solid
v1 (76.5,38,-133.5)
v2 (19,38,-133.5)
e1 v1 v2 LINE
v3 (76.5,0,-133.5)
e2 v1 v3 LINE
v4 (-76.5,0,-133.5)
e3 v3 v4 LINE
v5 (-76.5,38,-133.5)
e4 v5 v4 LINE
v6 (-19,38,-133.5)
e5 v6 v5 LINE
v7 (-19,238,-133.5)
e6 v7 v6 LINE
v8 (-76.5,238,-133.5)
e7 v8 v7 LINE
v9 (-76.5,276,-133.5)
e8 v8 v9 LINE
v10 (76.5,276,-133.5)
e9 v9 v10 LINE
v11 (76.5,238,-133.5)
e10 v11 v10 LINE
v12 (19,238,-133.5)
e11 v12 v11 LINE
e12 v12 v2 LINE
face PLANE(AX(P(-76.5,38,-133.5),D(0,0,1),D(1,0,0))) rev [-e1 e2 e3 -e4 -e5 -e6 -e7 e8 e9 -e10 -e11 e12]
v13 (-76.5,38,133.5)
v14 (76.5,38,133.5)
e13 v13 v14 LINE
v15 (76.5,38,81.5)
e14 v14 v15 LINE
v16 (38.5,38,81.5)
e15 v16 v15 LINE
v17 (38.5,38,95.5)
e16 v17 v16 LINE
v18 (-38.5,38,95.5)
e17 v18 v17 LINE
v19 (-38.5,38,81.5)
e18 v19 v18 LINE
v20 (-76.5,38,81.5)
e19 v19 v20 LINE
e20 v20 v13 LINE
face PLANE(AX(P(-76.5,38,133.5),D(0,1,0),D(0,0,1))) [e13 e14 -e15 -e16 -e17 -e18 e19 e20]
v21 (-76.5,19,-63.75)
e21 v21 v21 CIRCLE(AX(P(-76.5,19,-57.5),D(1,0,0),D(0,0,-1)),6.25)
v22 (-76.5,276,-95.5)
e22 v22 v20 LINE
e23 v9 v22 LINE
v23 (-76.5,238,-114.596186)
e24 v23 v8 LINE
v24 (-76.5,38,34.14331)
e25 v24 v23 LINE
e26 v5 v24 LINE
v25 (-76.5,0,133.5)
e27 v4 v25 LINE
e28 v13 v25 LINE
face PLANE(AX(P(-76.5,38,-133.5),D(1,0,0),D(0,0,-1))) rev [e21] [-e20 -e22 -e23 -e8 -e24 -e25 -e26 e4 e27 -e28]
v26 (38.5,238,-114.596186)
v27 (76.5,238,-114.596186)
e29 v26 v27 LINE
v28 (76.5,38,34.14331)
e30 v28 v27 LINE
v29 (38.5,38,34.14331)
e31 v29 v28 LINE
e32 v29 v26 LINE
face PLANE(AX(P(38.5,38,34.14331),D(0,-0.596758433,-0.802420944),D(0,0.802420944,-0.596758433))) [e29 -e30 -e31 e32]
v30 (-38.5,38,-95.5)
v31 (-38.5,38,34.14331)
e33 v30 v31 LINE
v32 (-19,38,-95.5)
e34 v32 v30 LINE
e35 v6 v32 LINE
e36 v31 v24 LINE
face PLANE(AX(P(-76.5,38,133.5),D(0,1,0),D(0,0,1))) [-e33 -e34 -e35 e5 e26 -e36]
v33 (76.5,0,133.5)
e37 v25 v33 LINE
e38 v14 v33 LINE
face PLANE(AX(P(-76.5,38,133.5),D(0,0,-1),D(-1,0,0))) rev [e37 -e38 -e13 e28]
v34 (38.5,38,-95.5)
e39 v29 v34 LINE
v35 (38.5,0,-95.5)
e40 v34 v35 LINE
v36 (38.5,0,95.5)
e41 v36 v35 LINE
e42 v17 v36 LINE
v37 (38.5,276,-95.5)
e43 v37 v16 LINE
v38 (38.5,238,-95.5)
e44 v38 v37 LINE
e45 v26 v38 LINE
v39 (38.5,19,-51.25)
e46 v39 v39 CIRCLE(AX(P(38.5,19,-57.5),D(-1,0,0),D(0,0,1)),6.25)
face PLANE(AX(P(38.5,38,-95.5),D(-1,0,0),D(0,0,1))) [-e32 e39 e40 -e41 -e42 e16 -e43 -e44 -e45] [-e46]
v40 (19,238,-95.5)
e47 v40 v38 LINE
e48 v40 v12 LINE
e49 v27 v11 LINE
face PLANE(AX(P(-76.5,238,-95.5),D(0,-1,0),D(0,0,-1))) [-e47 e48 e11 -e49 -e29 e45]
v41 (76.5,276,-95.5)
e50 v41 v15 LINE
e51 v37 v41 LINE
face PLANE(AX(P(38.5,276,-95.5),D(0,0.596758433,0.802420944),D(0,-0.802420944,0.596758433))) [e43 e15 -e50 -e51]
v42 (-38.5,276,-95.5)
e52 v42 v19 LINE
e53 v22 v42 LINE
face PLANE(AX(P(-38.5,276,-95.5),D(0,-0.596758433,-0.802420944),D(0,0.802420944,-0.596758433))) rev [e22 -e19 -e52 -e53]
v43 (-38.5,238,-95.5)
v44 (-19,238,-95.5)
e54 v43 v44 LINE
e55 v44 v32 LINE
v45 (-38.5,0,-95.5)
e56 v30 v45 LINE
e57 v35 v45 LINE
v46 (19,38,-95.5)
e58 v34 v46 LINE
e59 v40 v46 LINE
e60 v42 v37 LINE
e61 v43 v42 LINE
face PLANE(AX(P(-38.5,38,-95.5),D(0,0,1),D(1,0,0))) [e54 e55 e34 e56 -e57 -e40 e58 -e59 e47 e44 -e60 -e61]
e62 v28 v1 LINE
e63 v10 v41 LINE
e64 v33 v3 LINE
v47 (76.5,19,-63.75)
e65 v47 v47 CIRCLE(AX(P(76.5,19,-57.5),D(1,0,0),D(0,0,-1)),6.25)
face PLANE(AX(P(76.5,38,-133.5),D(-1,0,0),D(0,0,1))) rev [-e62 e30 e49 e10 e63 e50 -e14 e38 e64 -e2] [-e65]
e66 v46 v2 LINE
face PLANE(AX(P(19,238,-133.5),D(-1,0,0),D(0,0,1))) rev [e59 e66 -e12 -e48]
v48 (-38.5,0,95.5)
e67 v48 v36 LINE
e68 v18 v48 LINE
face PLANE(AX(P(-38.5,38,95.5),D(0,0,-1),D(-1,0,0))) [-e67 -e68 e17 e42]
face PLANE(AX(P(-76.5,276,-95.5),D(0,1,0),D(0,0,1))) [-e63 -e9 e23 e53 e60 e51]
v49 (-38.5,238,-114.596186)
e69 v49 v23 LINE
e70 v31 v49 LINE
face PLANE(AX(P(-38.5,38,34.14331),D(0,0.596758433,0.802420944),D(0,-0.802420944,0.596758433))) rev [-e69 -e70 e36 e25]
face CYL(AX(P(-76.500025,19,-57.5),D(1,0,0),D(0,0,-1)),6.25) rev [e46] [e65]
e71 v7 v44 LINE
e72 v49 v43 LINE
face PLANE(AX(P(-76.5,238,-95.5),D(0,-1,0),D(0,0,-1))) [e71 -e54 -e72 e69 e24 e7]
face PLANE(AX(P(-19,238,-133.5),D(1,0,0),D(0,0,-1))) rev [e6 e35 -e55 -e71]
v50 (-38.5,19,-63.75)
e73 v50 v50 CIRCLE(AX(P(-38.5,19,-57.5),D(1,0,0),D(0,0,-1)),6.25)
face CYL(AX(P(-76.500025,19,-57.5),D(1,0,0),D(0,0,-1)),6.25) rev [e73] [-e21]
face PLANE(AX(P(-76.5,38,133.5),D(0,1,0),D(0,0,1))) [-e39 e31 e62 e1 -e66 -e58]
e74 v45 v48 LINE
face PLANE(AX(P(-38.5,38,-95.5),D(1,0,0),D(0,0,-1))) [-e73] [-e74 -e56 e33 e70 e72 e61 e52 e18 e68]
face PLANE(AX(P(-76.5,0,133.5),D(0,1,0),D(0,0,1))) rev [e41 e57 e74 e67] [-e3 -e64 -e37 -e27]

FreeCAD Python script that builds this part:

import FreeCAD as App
import Part
import Sketcher

V = App.Vector
Q = App.Units.Quantity


def add_polygon(sketch, points):
    """Adds a closed chain of lines whose ends are joined by coincident constraints."""
    first, n = sketch.GeometryCount, len(points)
    for a, b in zip(points, points[1:] + points[:1]):
        sketch.addGeometry(Part.LineSegment(App.Vector(*a, 0), App.Vector(*b, 0)), False)
    for i in range(n):
        sketch.addConstraint(Sketcher.Constraint("Coincident", first + i, 2, first + (i + 1) % n, 1))

doc = App.newDocument("Part")
params = doc.addObject("Spreadsheet::Sheet", "Params")
for row, (alias, value) in enumerate([
    ("sketch1_width", "153 mm"),
    ("sketch1_width2", "77 mm"),
    ("sketch1_height", "267 mm"),
    ("sketch1_height2", "191 mm"),
    ("pad1_length", "38 mm"),
    ("sketch2_width", "38 mm"),
    ("pad2_length", "200 mm"),
    ("sketch3_width", "38 mm"),
    ("pad3_length", "76.5 mm"),
    ("pad3_length2", "76.5 mm"),
    ("sketch4_width", "38 mm"),
    ("pad4_length", "38 mm"),
    ("sketch5_diameter", "12.5 mm"),
], start=1):
    params.set(f"A{row}", alias)
    params.set(f"B{row}", "=" + value)
    params.setAlias(f"B{row}", alias)

body = doc.addObject("PartDesign::Body", "Body")

sketch1 = body.newObject("Sketcher::SketchObject", "Sketch")
sketch1.AttachmentSupport = (doc.getObject("XZ_Plane"), [""])
sketch1.MapMode = "FlatFace"
add_polygon(sketch1, [(-76.5, -133.5), (-76.5, 133.5), (76.5, 133.5), (76.5, -133.5)])
add_polygon(sketch1, [(38.5, 95.5), (-38.5, 95.5), (-38.5, -95.5), (38.5, -95.5)])
sketch1.addConstraint([
    Sketcher.Constraint("Vertical", 0),
    Sketcher.Constraint("Horizontal", 1),
    Sketcher.Constraint("Vertical", 2),
    Sketcher.Constraint("Horizontal", 3),
    Sketcher.Constraint("Horizontal", 4),
    Sketcher.Constraint("Vertical", 5),
    Sketcher.Constraint("Horizontal", 6),
    Sketcher.Constraint("Vertical", 7),
    Sketcher.Constraint("Symmetric", 0, 2, 2, 2, -1, 1),
    Sketcher.Constraint("Symmetric", 4, 2, 6, 2, -1, 1),
    Sketcher.Constraint("DistanceX", 1, 1, 1, 2, Q("153 mm")),
    Sketcher.Constraint("DistanceX", 4, 2, 4, 1, Q("77 mm")),
    Sketcher.Constraint("DistanceY", 0, 1, 0, 2, Q("267 mm")),
    Sketcher.Constraint("DistanceY", 5, 2, 5, 1, Q("191 mm")),
])
sketch1.setExpression("Constraints[18]", "Params.sketch1_width")
sketch1.setExpression("Constraints[19]", "Params.sketch1_width2")
sketch1.setExpression("Constraints[20]", "Params.sketch1_height")
sketch1.setExpression("Constraints[21]", "Params.sketch1_height2")
pad1 = body.newObject("PartDesign::Pad", "Pad")
pad1.Profile = sketch1
pad1.setExpression("Length", "Params.pad1_length")
pad1.Reversed = True

sketch2 = body.newObject("Sketcher::SketchObject", "Sketch001")
sketch2.AttachmentSupport = (doc.getObject("XZ_Plane"), [""])
sketch2.MapMode = "FlatFace"
sketch2.AttachmentOffset = App.Placement(V(0, 0, -38), App.Rotation())
add_polygon(sketch2, [(-19, -133.5), (-19, -95.5), (19, -95.5), (19, -133.5)])
sketch2.addConstraint([
    Sketcher.Constraint("Vertical", 0),
    Sketcher.Constraint("Horizontal", 1),
    Sketcher.Constraint("Vertical", 2),
    Sketcher.Constraint("Horizontal", 3),
    Sketcher.Constraint("Equal", 3, 0),
    Sketcher.Constraint("DistanceX", 1, 1, 1, 2, Q("38 mm")),
    Sketcher.Constraint("DistanceX", 0, 2, -1, 1, Q("19 mm")),
    Sketcher.Constraint("DistanceY", 0, 2, -1, 1, Q("95.5 mm")),
])
sketch2.setExpression("Constraints[9]", "Params.sketch2_width")
pad2 = body.newObject("PartDesign::Pad", "Pad001")
pad2.Profile = sketch2
pad2.setExpression("Length", "Params.pad2_length")
pad2.Reversed = True

sketch3 = body.newObject("Sketcher::SketchObject", "Sketch002")
sketch3.AttachmentSupport = (doc.getObject("YZ_Plane"), [""])
sketch3.MapMode = "FlatFace"
add_polygon(sketch3, [(276, -95.5), (238, -95.5), (238, -133.5), (276, -133.5)])
sketch3.addConstraint([
    Sketcher.Constraint("Horizontal", 0),
    Sketcher.Constraint("Vertical", 1),
    Sketcher.Constraint("Horizontal", 2),
    Sketcher.Constraint("Vertical", 3),
    Sketcher.Constraint("Equal", 2, 1),
    Sketcher.Constraint("DistanceX", 0, 2, 0, 1, Q("38 mm")),
    Sketcher.Constraint("DistanceX", -1, 1, 0, 2, Q("238 mm")),
    Sketcher.Constraint("DistanceY", 0, 2, -1, 1, Q("95.5 mm")),
])
sketch3.setExpression("Constraints[9]", "Params.sketch3_width")
pad3 = body.newObject("PartDesign::Pad", "Pad002")
pad3.Profile = sketch3
pad3.Type = "TwoLengths"
pad3.setExpression("Length", "Params.pad3_length")
pad3.setExpression("Length2", "Params.pad3_length2")

sketch4 = body.newObject("Sketcher::SketchObject", "Sketch003")
sketch4.AttachmentSupport = (doc.getObject("YZ_Plane"), [""])
sketch4.MapMode = "FlatFace"
sketch4.AttachmentOffset = App.Placement(V(0, 0, 76.5), App.Rotation())
add_polygon(sketch4, [(276, -95.5), (38, 81.5), (38, 34.14331), (238, -114.596186), (238, -95.5)])
sketch4.addConstraint([
    Sketcher.Constraint("Vertical", 1),
    Sketcher.Constraint("Vertical", 3),
    Sketcher.Constraint("Horizontal", 4),
    Sketcher.Constraint("Parallel", 0, 2),
    Sketcher.Constraint("DistanceX", 4, 1, 4, 2, Q("38 mm")),
    Sketcher.Constraint("DistanceX", -1, 1, 0, 2, Q("38 mm")),
    Sketcher.Constraint("DistanceX", -1, 1, 2, 2, Q("238 mm")),
    Sketcher.Constraint("DistanceY", 3, 2, 0, 2, Q("177 mm")),
    Sketcher.Constraint("DistanceY", -1, 1, 0, 2, Q("81.5 mm")),
    Sketcher.Constraint("DistanceY", 1, 2, 1, 1, Q("47.35669 mm")),
])
sketch4.setExpression("Constraints[9]", "Params.sketch4_width")
pad4 = body.newObject("PartDesign::Pad", "Pad003")
pad4.Profile = sketch4
pad4.setExpression("Length", "Params.pad4_length")
pad4.Reversed = True
doc.recompute()

mirrored = body.newObject("PartDesign::Mirrored", "Mirrored")
mirrored.Originals = [pad4]
mirrored.MirrorPlane = (doc.getObject("YZ_Plane"), [""])
body.Tip = mirrored

sketch5 = body.newObject("Sketcher::SketchObject", "Sketch004")
sketch5.AttachmentSupport = (doc.getObject("YZ_Plane"), [""])
sketch5.MapMode = "FlatFace"
sketch5.AttachmentOffset = App.Placement(V(0, 0, 76.5), App.Rotation())
sketch5.addGeometry(Part.Circle(V(19, -57.5, 0), V(0, 0, 1), 6.25), False)
sketch5.addConstraint([
    Sketcher.Constraint("Diameter", 0, Q("12.5 mm")),
    Sketcher.Constraint("DistanceX", -1, 1, 0, 3, Q("19 mm")),
    Sketcher.Constraint("DistanceY", 0, 3, -1, 1, Q("57.5 mm")),
])
sketch5.setExpression("Constraints[0]", "Params.sketch5_diameter")
pocket1 = body.newObject("PartDesign::Pocket", "Pocket")
pocket1.Profile = sketch5
pocket1.Type = "ThroughAll"

doc.recompute()
